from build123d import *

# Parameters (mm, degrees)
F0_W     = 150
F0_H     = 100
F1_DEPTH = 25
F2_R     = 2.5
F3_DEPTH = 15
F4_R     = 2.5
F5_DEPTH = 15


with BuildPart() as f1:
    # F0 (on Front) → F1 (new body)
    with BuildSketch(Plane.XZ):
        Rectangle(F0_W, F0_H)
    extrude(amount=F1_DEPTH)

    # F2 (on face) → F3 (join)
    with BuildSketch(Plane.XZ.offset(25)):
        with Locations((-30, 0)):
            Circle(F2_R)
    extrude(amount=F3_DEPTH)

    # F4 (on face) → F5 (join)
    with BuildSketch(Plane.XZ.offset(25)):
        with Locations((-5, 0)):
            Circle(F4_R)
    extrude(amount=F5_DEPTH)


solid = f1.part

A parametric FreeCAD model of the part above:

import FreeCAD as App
import Part
import Sketcher
from FreeCAD import Vector
Q = App.Units.Quantity

doc = App.newDocument("Part")
params = doc.addObject("Spreadsheet::Sheet", "Params")
for row, (alias, value) in enumerate([
    ("sketch1_width", "150 mm"),
    ("sketch1_height", "100 mm"),
    ("pad1_length", "25 mm"),
    ("sketch2_diameter", "5 mm"),
    ("pad2_length", "15 mm"),
    ("sketch3_diameter", "5 mm"),
    ("pad3_length", "15 mm"),
], start=1):
    params.set(f"A{row}", alias)
    params.set(f"B{row}", "=" + value)
    params.setAlias(f"B{row}", alias)

body = doc.addObject("PartDesign::Body", "Body")

sketch1 = doc.addObject("Sketcher::SketchObject", "Sketch")
body.addObject(sketch1)
sketch1.AttachmentSupport = (doc.XZ_Plane, [""])
sketch1.MapMode = "FlatFace"
sketch1.addGeometry([
    Part.LineSegment(Vector(-75, 50, 0), Vector(-75, -50, 0)),
    Part.LineSegment(Vector(-75, -50, 0), Vector(75, -50, 0)),
    Part.LineSegment(Vector(75, -50, 0), Vector(75, 50, 0)),
    Part.LineSegment(Vector(75, 50, 0), Vector(-75, 50, 0)),
], False)
sketch1.addConstraint([
    Sketcher.Constraint("Coincident", 0, 2, 1, 1),
    Sketcher.Constraint("Coincident", 1, 2, 2, 1),
    Sketcher.Constraint("Coincident", 2, 2, 3, 1),
    Sketcher.Constraint("Coincident", 3, 2, 0, 1),
    Sketcher.Constraint("Vertical", 0),
    Sketcher.Constraint("Horizontal", 1),
    Sketcher.Constraint("Vertical", 2),
    Sketcher.Constraint("Horizontal", 3),
    Sketcher.Constraint("Symmetric", 0, 2, 2, 2, -1, 1),
    Sketcher.Constraint("DistanceX", 1, 1, 1, 2, Q("150 mm")),
    Sketcher.Constraint("DistanceY", 0, 2, 0, 1, Q("100 mm")),
])
sketch1.setExpression("Constraints[9]", "Params.sketch1_width")
sketch1.setExpression("Constraints[10]", "Params.sketch1_height")
pad1 = doc.addObject("PartDesign::Pad", "Pad")
body.addObject(pad1)
pad1.Profile = sketch1
pad1.setExpression("Length", "Params.pad1_length")

sketch2 = doc.addObject("Sketcher::SketchObject", "Sketch001")
body.addObject(sketch2)
sketch2.AttachmentSupport = (doc.XZ_Plane, [""])
sketch2.MapMode = "FlatFace"
sketch2.AttachmentOffset = App.Placement(Vector(0, 0, 25), App.Rotation())
sketch2.addGeometry(Part.Circle(Vector(-30, 0, 0), Vector(0, 0, 1), 2.5), False)
sketch2.addConstraint([
    Sketcher.Constraint("PointOnObject", 0, 3, -1),
    Sketcher.Constraint("Diameter", 0, Q("5 mm")),
    Sketcher.Constraint("DistanceX", 0, 3, -1, 1, Q("30 mm")),
])
sketch2.setExpression("Constraints[1]", "Params.sketch2_diameter")
pad2 = doc.addObject("PartDesign::Pad", "Pad001")
body.addObject(pad2)
pad2.Profile = sketch2
pad2.setExpression("Length", "Params.pad2_length")

sketch3 = doc.addObject("Sketcher::SketchObject", "Sketch002")
body.addObject(sketch3)
sketch3.AttachmentSupport = (doc.XZ_Plane, [""])
sketch3.MapMode = "FlatFace"
sketch3.AttachmentOffset = App.Placement(Vector(0, 0, 25), App.Rotation())
sketch3.addGeometry(Part.Circle(Vector(-5, 0, 0), Vector(0, 0, 1), 2.5), False)
sketch3.addConstraint([
    Sketcher.Constraint("PointOnObject", 0, 3, -1),
    Sketcher.Constraint("Diameter", 0, Q("5 mm")),
    Sketcher.Constraint("DistanceX", 0, 3, -1, 1, Q("5 mm")),
])
sketch3.setExpression("Constraints[1]", "Params.sketch3_diameter")
pad3 = doc.addObject("PartDesign::Pad", "Pad002")
body.addObject(pad3)
pad3.Profile = sketch3
pad3.setExpression("Length", "Params.pad3_length")

doc.recompute()
